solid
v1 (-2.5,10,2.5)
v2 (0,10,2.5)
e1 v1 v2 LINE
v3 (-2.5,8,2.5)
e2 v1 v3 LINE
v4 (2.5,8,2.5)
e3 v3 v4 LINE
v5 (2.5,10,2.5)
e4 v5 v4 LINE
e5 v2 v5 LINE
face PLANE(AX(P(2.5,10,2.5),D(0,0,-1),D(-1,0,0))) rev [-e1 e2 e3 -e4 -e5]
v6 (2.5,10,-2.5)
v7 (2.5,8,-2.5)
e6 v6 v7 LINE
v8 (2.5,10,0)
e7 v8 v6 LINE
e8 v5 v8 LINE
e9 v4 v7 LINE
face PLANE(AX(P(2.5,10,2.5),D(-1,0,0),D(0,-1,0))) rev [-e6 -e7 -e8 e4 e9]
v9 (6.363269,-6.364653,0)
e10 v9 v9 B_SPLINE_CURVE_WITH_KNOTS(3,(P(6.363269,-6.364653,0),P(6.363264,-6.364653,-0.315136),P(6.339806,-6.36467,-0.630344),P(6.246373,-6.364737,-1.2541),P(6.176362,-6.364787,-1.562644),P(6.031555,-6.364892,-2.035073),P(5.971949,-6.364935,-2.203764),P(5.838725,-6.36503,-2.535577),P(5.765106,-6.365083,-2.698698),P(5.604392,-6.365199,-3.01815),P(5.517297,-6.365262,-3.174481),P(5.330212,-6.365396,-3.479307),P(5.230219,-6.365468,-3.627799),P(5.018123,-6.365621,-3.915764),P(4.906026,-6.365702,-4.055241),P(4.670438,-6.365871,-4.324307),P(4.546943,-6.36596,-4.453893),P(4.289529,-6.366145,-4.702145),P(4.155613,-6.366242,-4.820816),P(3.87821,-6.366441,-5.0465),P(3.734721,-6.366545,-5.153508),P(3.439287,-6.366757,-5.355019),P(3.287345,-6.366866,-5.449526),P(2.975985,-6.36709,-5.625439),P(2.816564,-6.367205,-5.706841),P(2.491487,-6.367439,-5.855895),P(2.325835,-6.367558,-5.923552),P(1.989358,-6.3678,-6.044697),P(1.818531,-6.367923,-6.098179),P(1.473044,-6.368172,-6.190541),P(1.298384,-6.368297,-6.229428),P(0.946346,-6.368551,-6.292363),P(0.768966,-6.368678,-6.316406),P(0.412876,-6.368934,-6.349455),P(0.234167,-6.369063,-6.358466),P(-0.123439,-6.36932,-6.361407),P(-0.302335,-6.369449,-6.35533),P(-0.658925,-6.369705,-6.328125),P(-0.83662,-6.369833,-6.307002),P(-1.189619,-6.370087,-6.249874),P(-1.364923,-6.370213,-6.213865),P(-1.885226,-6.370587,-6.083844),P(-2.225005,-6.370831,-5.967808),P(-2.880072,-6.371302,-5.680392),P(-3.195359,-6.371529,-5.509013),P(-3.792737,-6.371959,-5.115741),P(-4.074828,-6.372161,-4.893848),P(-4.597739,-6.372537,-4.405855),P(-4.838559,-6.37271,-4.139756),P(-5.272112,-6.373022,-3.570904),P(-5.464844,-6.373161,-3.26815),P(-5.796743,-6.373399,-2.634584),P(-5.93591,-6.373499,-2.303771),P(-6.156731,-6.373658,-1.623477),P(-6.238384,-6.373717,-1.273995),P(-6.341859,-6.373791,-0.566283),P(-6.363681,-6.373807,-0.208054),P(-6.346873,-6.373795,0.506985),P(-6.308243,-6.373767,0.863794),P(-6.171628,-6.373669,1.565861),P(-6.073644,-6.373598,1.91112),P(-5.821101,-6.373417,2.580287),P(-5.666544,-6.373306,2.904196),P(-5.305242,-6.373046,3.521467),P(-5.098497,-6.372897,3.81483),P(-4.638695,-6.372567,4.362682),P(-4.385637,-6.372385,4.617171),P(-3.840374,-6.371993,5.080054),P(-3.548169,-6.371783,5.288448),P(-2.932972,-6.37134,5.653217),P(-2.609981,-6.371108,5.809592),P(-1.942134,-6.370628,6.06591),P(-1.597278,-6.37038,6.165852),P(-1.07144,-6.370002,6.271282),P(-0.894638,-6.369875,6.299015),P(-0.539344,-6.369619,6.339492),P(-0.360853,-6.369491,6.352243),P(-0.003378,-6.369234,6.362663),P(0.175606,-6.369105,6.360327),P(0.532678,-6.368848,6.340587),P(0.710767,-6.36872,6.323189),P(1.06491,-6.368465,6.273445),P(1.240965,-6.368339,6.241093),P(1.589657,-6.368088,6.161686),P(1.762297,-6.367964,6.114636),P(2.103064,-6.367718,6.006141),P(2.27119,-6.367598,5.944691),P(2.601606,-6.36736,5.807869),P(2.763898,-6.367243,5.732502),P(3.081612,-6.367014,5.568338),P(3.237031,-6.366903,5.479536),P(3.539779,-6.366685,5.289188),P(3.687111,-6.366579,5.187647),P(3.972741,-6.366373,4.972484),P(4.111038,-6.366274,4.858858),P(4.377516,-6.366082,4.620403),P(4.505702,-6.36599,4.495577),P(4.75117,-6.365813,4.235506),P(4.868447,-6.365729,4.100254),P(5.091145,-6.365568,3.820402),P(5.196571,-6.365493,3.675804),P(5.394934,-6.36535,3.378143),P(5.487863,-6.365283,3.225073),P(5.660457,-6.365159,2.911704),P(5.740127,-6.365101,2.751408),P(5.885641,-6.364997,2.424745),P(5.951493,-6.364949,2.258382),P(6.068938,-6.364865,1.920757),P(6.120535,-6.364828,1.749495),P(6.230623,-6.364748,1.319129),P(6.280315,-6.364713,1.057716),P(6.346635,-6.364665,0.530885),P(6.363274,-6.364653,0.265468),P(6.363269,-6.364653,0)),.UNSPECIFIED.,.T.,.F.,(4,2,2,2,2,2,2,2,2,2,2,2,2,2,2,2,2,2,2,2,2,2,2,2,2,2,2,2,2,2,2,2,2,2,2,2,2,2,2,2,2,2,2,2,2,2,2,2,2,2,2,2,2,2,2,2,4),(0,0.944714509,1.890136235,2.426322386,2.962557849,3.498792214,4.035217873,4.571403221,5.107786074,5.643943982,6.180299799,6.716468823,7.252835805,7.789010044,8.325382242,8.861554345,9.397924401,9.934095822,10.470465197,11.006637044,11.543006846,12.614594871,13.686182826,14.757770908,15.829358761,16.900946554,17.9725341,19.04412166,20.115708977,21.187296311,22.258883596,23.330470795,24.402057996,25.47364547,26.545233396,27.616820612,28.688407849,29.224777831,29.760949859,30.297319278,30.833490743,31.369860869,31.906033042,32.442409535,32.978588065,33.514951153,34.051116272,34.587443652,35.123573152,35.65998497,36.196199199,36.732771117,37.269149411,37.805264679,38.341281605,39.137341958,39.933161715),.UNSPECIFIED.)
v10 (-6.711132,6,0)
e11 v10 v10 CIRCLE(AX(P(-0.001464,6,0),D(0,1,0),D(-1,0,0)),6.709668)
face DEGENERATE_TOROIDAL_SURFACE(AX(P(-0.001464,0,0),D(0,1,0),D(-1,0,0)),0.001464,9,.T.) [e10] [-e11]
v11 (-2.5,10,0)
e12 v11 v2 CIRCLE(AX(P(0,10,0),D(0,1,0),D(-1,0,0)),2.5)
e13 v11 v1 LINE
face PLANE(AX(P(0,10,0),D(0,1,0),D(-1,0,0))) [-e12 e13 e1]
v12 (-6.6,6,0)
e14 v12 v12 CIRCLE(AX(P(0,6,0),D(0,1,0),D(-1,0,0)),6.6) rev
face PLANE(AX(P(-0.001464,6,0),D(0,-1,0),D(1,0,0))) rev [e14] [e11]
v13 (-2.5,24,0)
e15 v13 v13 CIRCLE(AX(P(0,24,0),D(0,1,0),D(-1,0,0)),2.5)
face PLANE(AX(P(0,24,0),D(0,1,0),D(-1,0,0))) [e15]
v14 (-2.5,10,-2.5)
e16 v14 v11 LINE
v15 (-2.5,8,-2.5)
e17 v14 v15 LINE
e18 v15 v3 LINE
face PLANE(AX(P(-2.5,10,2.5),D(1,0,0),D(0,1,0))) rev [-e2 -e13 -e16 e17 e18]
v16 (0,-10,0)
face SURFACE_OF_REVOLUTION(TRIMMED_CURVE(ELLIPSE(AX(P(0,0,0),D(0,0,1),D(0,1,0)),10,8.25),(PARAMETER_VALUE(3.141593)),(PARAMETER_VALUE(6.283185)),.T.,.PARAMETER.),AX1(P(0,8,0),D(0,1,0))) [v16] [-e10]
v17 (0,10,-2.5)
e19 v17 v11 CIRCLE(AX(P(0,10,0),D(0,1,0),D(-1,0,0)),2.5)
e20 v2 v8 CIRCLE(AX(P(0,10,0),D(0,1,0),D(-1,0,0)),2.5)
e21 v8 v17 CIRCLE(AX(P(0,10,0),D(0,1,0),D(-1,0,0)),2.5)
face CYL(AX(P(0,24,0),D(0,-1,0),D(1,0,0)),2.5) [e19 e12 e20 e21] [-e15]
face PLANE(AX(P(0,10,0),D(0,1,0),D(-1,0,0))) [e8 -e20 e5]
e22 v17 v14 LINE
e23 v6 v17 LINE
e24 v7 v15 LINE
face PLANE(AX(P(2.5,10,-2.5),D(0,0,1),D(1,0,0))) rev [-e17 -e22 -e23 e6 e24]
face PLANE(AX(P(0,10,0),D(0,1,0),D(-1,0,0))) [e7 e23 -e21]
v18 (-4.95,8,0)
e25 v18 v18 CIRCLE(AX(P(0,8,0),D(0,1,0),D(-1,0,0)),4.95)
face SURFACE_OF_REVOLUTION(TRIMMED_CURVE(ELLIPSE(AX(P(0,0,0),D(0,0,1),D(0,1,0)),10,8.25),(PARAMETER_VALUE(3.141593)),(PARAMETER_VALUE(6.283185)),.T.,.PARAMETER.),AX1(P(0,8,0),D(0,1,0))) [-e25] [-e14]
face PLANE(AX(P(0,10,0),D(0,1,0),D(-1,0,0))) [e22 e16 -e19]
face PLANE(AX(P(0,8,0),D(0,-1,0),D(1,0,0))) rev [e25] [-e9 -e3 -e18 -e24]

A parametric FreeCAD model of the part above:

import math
import FreeCAD as App
import Part
import Sketcher
from FreeCAD import Vector

doc = App.newDocument("Part")
body = doc.addObject("PartDesign::Body", "Body")

sketch1 = doc.addObject("Sketcher::SketchObject", "Sketch")
body.addObject(sketch1)
sketch1.AttachmentSupport = (doc.XY_Plane, [""])
sketch1.MapMode = "FlatFace"
sketch1.addGeometry([
    Part.LineSegment(Vector(4.95, 8, 0), Vector(0, 8, 0)),
    Part.LineSegment(Vector(0, 8, 0), Vector(0, -10, 0)),
    Part.BSplineCurve([Vector(0, -10, 0), Vector(24.75, -10, 0), Vector(4.95, 8, 0)], [3, 3], [3.141592654, 5.639684198], False, 2, [1, 0.316227766, 1], False),
], False)
sketch1.addConstraint([
    Sketcher.Constraint("Block", 2),
    Sketcher.Constraint("Coincident", 0, 2, 1, 1),
    Sketcher.Constraint("Coincident", 1, 2, 2, 1),
    Sketcher.Constraint("Coincident", 2, 2, 0, 1),
    Sketcher.Constraint("Horizontal", 0),
    Sketcher.Constraint("Vertical", 1),
])
revolution = doc.addObject("PartDesign::Revolution", "Revolution")
body.addObject(revolution)
revolution.Profile = sketch1
revolution.ReferenceAxis = (sketch1, ["V_Axis"])
revolution.Angle = 360

sketch2 = doc.addObject("Sketcher::SketchObject", "Sketch001")
body.addObject(sketch2)
sketch2.AttachmentSupport = (doc.XZ_Plane, [""])
sketch2.MapMode = "FlatFace"
sketch2.AttachmentOffset = App.Placement(Vector(0, 0, -8), App.Rotation())
sketch2.addGeometry([
    Part.LineSegment(Vector(-2, -2, 0), Vector(-2, 2, 0)),
    Part.LineSegment(Vector(-2, 2, 0), Vector(2, 2, 0)),
    Part.LineSegment(Vector(2, 2, 0), Vector(2, -2, 0)),
    Part.LineSegment(Vector(2, -2, 0), Vector(-2, -2, 0)),
], False)
sketch2.addConstraint([
    Sketcher.Constraint("Coincident", 0, 2, 1, 1),
    Sketcher.Constraint("Coincident", 1, 2, 2, 1),
    Sketcher.Constraint("Coincident", 2, 2, 3, 1),
    Sketcher.Constraint("Coincident", 3, 2, 0, 1),
    Sketcher.Constraint("Vertical", 0),
    Sketcher.Constraint("Horizontal", 1),
    Sketcher.Constraint("Vertical", 2),
    Sketcher.Constraint("Horizontal", 3),
    Sketcher.Constraint("Symmetric", 0, 2, 2, 2, -1, 1),
    Sketcher.Constraint("Equal", 3, 0),
    Sketcher.Constraint("DistanceX", 1, 1, 1, 2, 5.0),
])
pad1 = doc.addObject("PartDesign::Pad", "Pad")
body.addObject(pad1)
pad1.Profile = sketch2
pad1.Length = 2
pad1.Reversed = True

sketch3 = doc.addObject("Sketcher::SketchObject", "Sketch002")
body.addObject(sketch3)
sketch3.AttachmentSupport = (doc.XZ_Plane, [""])
sketch3.MapMode = "FlatFace"
sketch3.AttachmentOffset = App.Placement(Vector(0, 0, -10), App.Rotation())
sketch3.addGeometry(Part.Circle(Vector(0, 0, 0), Vector(0, 0, 1), 2.5), False)
sketch3.addConstraint([
    Sketcher.Constraint("Coincident", 0, 3, -1, 1),
    Sketcher.Constraint("Diameter", 0, 5.0),
])
pad2 = doc.addObject("PartDesign::Pad", "Pad001")
body.addObject(pad2)
pad2.Profile = sketch3
pad2.Length = 14
pad2.Reversed = True

sketch4 = doc.addObject("Sketcher::SketchObject", "Sketch003")
body.addObject(sketch4)
sketch4.AttachmentSupport = (doc.XY_Plane, [""])
sketch4.MapMode = "FlatFace"
sketch4.addGeometry([
    Part.LineSegment(Vector(7, 6, 0), Vector(0, 6, 0)),
    Part.LineSegment(Vector(0, 6, 0), Vector(0, -9, 0)),
    Part.ArcOfCircle(Part.Circle(Vector(0, 0, 0), Vector(0, 0, 1), 9), math.radians(-90), math.radians(42)),
], False)
sketch4.addGeometry(Part.LineSegment(Vector(0, 6, 0), Vector(0, -9, 0)), True)
sketch4.addConstraint([
    Sketcher.Constraint("Coincident", 0, 2, 1, 1),
    Sketcher.Constraint("Coincident", 1, 2, 2, 1),
    Sketcher.Constraint("Coincident", 2, 2, 0, 1),
    Sketcher.Constraint("Horizontal", 0),
    Sketcher.Constraint("Vertical", 1),
    Sketcher.Constraint("Vertical", 3),
    Sketcher.Constraint("Coincident", 2, 3, -1, 1),
    Sketcher.Constraint("Coincident", 3, 1, 0, 2),
    Sketcher.Constraint("Equal", 1, 3),
    Sketcher.Constraint("Radius", 2, 9.0),
    Sketcher.Constraint("DistanceY", 1, 2, 1, 1, 15.0),
    Sketcher.Constraint("DistanceX", 0, 2, 0, 1, 6.709668),
])
revolution2 = doc.addObject("PartDesign::Revolution", "Revolution001")
body.addObject(revolution2)
revolution2.Profile = sketch4
revolution2.ReferenceAxis = (sketch4, ["Axis0"])
revolution2.Angle = 360

doc.recompute()
